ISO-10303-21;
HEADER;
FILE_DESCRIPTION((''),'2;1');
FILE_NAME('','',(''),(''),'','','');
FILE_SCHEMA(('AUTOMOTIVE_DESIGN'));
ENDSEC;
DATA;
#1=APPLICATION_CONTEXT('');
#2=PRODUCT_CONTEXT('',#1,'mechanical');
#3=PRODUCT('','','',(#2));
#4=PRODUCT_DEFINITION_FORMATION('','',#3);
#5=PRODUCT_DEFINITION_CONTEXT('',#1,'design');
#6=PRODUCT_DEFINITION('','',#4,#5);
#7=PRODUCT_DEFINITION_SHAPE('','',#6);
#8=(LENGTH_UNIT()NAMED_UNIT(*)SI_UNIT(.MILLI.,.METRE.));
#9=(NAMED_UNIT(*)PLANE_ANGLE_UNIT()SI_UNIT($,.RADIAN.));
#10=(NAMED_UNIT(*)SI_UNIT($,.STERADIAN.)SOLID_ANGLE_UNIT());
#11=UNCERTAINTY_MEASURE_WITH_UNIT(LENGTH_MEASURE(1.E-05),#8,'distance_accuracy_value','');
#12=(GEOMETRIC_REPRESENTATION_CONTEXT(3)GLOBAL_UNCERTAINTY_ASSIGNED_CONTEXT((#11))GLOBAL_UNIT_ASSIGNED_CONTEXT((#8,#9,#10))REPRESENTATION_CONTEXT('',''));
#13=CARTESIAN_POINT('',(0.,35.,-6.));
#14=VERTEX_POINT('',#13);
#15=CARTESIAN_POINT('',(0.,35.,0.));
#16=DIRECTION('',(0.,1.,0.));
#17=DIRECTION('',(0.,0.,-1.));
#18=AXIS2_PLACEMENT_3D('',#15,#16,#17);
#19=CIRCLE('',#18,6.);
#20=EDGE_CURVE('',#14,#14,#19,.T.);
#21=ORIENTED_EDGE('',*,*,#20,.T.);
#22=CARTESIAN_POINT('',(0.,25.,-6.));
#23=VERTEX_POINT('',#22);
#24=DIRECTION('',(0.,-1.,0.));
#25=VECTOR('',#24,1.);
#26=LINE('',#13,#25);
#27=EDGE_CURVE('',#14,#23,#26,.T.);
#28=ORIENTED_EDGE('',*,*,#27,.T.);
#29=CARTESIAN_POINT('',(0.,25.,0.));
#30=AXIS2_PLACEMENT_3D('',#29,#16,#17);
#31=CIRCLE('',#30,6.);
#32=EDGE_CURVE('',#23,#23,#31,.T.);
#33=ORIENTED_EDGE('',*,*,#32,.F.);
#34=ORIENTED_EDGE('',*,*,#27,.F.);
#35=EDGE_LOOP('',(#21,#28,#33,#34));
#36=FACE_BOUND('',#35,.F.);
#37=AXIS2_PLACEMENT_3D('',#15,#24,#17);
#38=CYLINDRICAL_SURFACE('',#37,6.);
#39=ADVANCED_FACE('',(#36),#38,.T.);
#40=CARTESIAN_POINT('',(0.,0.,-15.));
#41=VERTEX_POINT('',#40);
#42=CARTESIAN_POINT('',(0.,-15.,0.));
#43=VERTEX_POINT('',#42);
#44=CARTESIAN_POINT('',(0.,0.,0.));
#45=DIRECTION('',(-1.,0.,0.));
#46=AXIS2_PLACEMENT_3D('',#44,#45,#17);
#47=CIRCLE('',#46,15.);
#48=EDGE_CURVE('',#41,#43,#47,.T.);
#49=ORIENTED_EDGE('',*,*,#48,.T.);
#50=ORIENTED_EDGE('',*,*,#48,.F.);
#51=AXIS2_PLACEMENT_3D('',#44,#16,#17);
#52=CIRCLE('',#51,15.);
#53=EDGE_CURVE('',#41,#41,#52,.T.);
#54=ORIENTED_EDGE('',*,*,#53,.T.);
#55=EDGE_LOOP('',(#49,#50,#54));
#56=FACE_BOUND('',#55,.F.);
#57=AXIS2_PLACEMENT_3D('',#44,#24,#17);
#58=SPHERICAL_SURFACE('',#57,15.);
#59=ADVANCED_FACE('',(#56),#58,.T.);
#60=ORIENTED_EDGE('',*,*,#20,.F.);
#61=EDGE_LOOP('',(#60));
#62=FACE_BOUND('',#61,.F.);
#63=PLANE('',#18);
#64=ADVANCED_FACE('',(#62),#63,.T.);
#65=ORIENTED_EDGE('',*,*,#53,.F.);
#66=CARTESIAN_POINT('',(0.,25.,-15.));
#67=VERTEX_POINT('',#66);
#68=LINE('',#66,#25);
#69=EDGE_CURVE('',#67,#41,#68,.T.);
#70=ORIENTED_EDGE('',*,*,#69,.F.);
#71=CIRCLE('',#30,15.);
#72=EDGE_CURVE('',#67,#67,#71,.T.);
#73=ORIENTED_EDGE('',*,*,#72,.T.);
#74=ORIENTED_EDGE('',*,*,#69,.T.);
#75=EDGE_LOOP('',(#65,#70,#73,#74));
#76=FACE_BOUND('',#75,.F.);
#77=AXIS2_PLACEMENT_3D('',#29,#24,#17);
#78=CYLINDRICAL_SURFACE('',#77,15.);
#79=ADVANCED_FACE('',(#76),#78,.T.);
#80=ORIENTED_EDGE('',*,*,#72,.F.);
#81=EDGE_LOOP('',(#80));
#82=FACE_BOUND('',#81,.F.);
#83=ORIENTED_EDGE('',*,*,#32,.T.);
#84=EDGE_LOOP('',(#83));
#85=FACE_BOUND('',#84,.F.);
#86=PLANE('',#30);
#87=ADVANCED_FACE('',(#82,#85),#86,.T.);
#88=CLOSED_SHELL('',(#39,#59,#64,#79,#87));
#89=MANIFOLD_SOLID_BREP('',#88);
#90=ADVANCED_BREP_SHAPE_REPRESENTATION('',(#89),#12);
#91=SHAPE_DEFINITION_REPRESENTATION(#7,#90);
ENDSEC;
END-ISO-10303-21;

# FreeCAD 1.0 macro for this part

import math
import FreeCAD as App
import Part
import Sketcher
from FreeCAD import Vector

doc = App.newDocument("Part")
body = doc.addObject("PartDesign::Body", "Body")

sketch1 = body.newObject("Sketcher::SketchObject", "Sketch")
sketch1.AttachmentSupport = (doc.getObject("XY_Plane"), [""])
sketch1.MapMode = "FlatFace"
sketch1.addGeometry([
    Part.LineSegment(Vector(6, 35, 0), Vector(0, 35, 0)),
    Part.LineSegment(Vector(0, 35, 0), Vector(0, -15, 0)),
    Part.ArcOfCircle(Part.Circle(Vector(0, 0, 0), Vector(0, 0, 1), 15), math.radians(-90), math.radians(0)),
    Part.LineSegment(Vector(15, 0, 0), Vector(15, 25, 0)),
    Part.LineSegment(Vector(15, 25, 0), Vector(6, 25, 0)),
    Part.LineSegment(Vector(6, 25, 0), Vector(6, 35, 0)),
], False)
sketch1.addConstraint([
    Sketcher.Constraint("Coincident", 0, 2, 1, 1),
    Sketcher.Constraint("Coincident", 1, 2, 2, 1),
    Sketcher.Constraint("Tangent", 2, 2, 3, 1),
    Sketcher.Constraint("Coincident", 3, 2, 4, 1),
    Sketcher.Constraint("Coincident", 4, 2, 5, 1),
    Sketcher.Constraint("Coincident", 5, 2, 0, 1),
    Sketcher.Constraint("Horizontal", 0),
    Sketcher.Constraint("Vertical", 1),
    Sketcher.Constraint("Vertical", 3),
    Sketcher.Constraint("Horizontal", 4),
    Sketcher.Constraint("Vertical", 5),
    Sketcher.Constraint("Coincident", 2, 3, -1, 1),
    Sketcher.Constraint("PointOnObject", 0, 2, -2),
    Sketcher.Constraint("Radius", 2, 15.0),
    Sketcher.Constraint("DistanceX", 0, 2, 0, 1, 6.0),
    Sketcher.Constraint("DistanceY", 1, 2, 1, 1, 50.0),
    Sketcher.Constraint("DistanceY", 3, 1, 3, 2, 25.0),
])
revolution = body.newObject("PartDesign::Revolution", "Revolution")
revolution.Profile = sketch1
revolution.ReferenceAxis = (sketch1, ["V_Axis"])
revolution.Angle = 360

doc.recompute()
